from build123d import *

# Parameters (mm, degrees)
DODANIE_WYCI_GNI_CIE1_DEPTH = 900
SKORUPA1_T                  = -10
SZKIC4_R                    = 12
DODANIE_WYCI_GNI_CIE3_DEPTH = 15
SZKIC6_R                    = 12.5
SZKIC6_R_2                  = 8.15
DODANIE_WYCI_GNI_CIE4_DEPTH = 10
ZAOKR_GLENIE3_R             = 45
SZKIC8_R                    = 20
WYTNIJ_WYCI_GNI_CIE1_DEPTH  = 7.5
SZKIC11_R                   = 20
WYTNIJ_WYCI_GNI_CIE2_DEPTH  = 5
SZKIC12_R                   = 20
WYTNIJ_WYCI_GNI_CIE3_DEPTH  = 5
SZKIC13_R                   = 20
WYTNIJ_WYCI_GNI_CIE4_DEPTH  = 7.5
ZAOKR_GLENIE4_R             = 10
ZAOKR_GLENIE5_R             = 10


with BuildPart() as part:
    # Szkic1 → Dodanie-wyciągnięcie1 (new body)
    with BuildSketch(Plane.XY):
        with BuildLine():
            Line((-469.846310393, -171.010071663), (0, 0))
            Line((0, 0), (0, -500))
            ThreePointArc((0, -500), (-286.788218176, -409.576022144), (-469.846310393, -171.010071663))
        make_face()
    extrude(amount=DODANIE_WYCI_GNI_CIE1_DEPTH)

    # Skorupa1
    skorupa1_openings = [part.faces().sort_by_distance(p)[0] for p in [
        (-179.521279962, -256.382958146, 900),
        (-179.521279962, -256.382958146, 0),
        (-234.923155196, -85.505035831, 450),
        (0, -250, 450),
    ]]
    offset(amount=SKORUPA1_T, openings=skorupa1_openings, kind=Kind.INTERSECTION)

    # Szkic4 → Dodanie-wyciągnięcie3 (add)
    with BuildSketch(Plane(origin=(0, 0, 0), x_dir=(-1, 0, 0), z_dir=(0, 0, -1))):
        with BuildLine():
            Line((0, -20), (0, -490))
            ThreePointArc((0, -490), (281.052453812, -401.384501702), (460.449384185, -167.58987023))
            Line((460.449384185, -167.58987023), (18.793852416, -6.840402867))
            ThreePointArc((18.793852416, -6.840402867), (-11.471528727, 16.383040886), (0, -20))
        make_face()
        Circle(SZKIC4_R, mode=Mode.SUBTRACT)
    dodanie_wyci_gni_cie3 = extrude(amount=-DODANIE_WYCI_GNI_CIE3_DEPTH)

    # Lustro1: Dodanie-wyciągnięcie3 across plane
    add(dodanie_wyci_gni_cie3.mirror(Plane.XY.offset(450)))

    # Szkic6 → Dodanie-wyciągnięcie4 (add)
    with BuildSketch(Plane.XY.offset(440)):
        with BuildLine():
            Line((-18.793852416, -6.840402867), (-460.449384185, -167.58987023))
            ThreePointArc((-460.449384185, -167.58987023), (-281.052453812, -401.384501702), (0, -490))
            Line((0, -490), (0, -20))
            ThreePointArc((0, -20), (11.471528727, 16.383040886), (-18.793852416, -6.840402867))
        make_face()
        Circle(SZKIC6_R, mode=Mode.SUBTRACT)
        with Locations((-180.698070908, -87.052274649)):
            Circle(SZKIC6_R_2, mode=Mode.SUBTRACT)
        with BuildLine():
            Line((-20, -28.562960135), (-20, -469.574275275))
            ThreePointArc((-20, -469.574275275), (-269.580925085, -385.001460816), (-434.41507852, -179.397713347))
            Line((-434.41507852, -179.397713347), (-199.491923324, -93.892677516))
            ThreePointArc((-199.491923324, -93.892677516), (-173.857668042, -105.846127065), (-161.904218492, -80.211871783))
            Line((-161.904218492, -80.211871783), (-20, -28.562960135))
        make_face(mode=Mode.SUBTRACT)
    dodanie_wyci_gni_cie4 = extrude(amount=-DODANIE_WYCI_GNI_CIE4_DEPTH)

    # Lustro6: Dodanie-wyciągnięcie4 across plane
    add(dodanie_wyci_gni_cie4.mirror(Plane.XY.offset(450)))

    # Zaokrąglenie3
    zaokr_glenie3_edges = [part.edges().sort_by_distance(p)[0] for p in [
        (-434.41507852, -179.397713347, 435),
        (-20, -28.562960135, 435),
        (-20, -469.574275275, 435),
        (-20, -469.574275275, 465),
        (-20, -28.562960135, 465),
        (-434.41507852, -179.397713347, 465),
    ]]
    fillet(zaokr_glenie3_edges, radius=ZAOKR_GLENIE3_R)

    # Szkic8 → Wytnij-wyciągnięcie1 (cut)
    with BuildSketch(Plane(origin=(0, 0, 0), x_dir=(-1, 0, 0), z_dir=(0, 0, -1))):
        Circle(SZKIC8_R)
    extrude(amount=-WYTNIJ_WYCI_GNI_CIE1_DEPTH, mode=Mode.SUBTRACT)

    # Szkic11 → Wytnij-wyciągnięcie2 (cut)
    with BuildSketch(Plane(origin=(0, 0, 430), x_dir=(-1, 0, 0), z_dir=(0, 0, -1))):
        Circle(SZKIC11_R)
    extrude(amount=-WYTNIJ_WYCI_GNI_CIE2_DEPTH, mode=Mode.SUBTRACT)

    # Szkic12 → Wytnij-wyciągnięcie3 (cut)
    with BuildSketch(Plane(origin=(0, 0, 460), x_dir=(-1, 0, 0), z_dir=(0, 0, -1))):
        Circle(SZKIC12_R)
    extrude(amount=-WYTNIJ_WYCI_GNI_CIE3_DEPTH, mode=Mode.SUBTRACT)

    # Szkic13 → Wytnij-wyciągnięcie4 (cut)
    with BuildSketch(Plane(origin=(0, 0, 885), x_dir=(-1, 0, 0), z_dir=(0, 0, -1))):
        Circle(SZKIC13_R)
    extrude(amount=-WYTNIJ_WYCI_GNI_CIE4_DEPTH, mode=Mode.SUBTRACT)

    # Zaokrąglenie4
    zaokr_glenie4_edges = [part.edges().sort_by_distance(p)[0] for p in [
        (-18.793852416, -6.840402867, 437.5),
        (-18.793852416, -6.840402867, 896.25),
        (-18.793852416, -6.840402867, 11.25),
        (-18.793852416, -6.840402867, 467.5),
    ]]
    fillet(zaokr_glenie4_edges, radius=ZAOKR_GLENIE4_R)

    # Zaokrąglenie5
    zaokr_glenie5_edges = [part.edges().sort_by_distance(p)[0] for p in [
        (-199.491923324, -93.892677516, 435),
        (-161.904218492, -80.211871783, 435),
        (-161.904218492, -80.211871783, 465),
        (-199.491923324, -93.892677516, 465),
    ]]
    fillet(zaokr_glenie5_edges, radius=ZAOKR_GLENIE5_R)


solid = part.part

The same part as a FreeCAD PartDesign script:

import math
import FreeCAD as App
import Part
import Sketcher
Q = App.Units.Quantity


def edges_at(feature, points):
    """Names of the edges that pass closest to the given points."""
    edges = feature.Shape.Edges
    near = lambda p: min(range(len(edges)), key=lambda i: edges[i].distToShape(Part.Vertex(*p))[0])
    return sorted({f"Edge{near(p) + 1}" for p in points})


def faces_at(feature, points):
    """Names of the faces that lie closest to the given points."""
    faces = feature.Shape.Faces
    near = lambda p: min(range(len(faces)), key=lambda i: faces[i].distToShape(Part.Vertex(*p))[0])
    return sorted({f"Face{near(p) + 1}" for p in points})

doc = App.newDocument("Part")
body = doc.addObject("PartDesign::Body", "Body")

# Sketch on XY plane
sketch1 = body.newObject("Sketcher::SketchObject", "Sketch")
sketch1.AttachmentSupport = (doc.getObject("XY_Plane"), [""])
sketch1.MapMode = "FlatFace"
sketch1.addGeometry([
    Part.LineSegment(App.Vector(0, 0, 0), App.Vector(-469.84631, -171.010072, 0)),
    Part.ArcOfCircle(Part.Circle(App.Vector(0, 0, 0), App.Vector(0, 0, 1), 500), math.radians(-160), math.radians(-90)),
    Part.LineSegment(App.Vector(0, -500, 0), App.Vector(0, 0, 0)),
], False)
sketch1.addConstraint([
    Sketcher.Constraint("Coincident", 0, 2, 1, 1),
    Sketcher.Constraint("Coincident", 1, 2, 2, 1),
    Sketcher.Constraint("Coincident", 2, 2, 0, 1),
    Sketcher.Constraint("Vertical", 2),
    Sketcher.Constraint("Coincident", 1, 3, -1, 1),
    Sketcher.Constraint("Coincident", 2, 2, -1, 1),
    Sketcher.Constraint("Radius", 1, Q("500 mm")),
    Sketcher.Constraint("Angle", 0, Q("-160 deg")),
])
pad1 = body.newObject("PartDesign::Pad", "Pad")
pad1.Profile = sketch1
pad1.Length = 900
doc.recompute()

thickness = body.newObject("PartDesign::Thickness", "Thickness")
thickness.Base = (pad1, faces_at(pad1, [
    (-234.923, -250, 900),
    (-234.923, -250, 0),
    (-234.923, -85.505, 450),
    (0, -250, 450),
]))
thickness.Value = 10
thickness.Reversed = True
thickness.Join = "Intersection"

# Sketch on XY plane
sketch2 = body.newObject("Sketcher::SketchObject", "Sketch001")
sketch2.AttachmentSupport = (doc.getObject("XY_Plane"), [""])
sketch2.MapMode = "FlatFace"
sketch2.addGeometry([
    Part.LineSegment(App.Vector(0, -20, 0), App.Vector(0, -490, 0)),  # 0
    Part.ArcOfCircle(Part.Circle(App.Vector(0, 0, 0), App.Vector(0, 0, 1), 490), math.radians(-160), math.radians(-90)),  # 1
    Part.LineSegment(App.Vector(-460.449384, -167.58987, 0), App.Vector(-18.793852, -6.840403, 0)),  # 2
    Part.ArcOfCircle(Part.Circle(App.Vector(0, 0, 0), App.Vector(0, 0, 1), 20), math.radians(-90), math.radians(200)),  # 3
    Part.Circle(App.Vector(0, 0, 0), App.Vector(0, 0, 1), 12),  # 4
], False)
sketch2.addConstraint([
    Sketcher.Constraint("Coincident", 0, 2, 1, 2),
    Sketcher.Constraint("Coincident", 1, 1, 2, 1),
    Sketcher.Constraint("Coincident", 2, 2, 3, 2),
    Sketcher.Constraint("Coincident", 3, 1, 0, 1),
    Sketcher.Constraint("Vertical", 0),
    Sketcher.Constraint("Coincident", 1, 3, -1, 1),
    Sketcher.Constraint("Coincident", 3, 3, -1, 1),
    Sketcher.Constraint("Coincident", 4, 3, -1, 1),
    Sketcher.Constraint("PointOnObject", 0, 2, -2),
    Sketcher.Constraint("Diameter", 4, Q("24 mm")),
    Sketcher.Constraint("Radius", 1, Q("490 mm")),
    Sketcher.Constraint("Radius", 3, Q("20 mm")),
    Sketcher.Constraint("Angle", 2, Q("20 deg")),
    Sketcher.Constraint("DistanceX", 2, 2, -1, 1, Q("18.793852 mm")),
])
pad2 = body.newObject("PartDesign::Pad", "Pad001")
pad2.Profile = sketch2
pad2.Length = 15
doc.recompute()

datumplane = body.newObject("PartDesign::Plane", "DatumPlane")
datumplane.AttachmentSupport = (doc.getObject("XY_Plane"), [""])
datumplane.MapMode = "FlatFace"
datumplane.AttachmentOffset = App.Placement(App.Vector(0, 0, 450), App.Rotation())
mirrored = body.newObject("PartDesign::Mirrored", "Mirrored")
mirrored.Originals = [pad2]
mirrored.MirrorPlane = (datumplane, [""])
body.Tip = mirrored

# Sketch on XY plane
sketch3 = body.newObject("Sketcher::SketchObject", "Sketch002")
sketch3.AttachmentSupport = (doc.getObject("XY_Plane"), [""])
sketch3.MapMode = "FlatFace"
sketch3.AttachmentOffset = App.Placement(App.Vector(0, 0, 440), App.Rotation())
sketch3.addGeometry([
    Part.LineSegment(App.Vector(-18.793852, -6.840403, 0), App.Vector(-460.449384, -167.58987, 0)),  # 0
    Part.ArcOfCircle(Part.Circle(App.Vector(0, 0, 0), App.Vector(0, 0, 1), 490), math.radians(-160), math.radians(-90)),  # 1
    Part.LineSegment(App.Vector(0, -490, 0), App.Vector(0, -20, 0)),  # 2
    Part.ArcOfCircle(Part.Circle(App.Vector(0, 0, 0), App.Vector(0, 0, 1), 20), math.radians(-90), math.radians(200)),  # 3
    Part.LineSegment(App.Vector(-161.904218, -80.211872, 0), App.Vector(-20, -28.56296, 0)),  # 4
    Part.LineSegment(App.Vector(-20, -28.56296, 0), App.Vector(-20, -469.574275, 0)),  # 5
    Part.ArcOfCircle(Part.Circle(App.Vector(0, 0, 0), App.Vector(0, 0, 1), 470), math.radians(-157.561145), math.radians(-92.438855)),  # 6
    Part.LineSegment(App.Vector(-434.415079, -179.397713, 0), App.Vector(-199.491923, -93.892678, 0)),  # 7
    Part.ArcOfCircle(Part.Circle(App.Vector(-180.698071, -87.052275, 0), App.Vector(0, 0, 1), 20), math.radians(-160), math.radians(20)),  # 8
    Part.Circle(App.Vector(-180.698071, -87.052275, 0), App.Vector(0, 0, 1), 8.15),  # 9
    Part.Circle(App.Vector(0, 0, 0), App.Vector(0, 0, 1), 12.5),  # 10
], False)
sketch3.addConstraint([
    Sketcher.Constraint("Coincident", 0, 2, 1, 1),
    Sketcher.Constraint("Coincident", 1, 2, 2, 1),
    Sketcher.Constraint("Coincident", 2, 2, 3, 1),
    Sketcher.Constraint("Coincident", 3, 2, 0, 1),
    Sketcher.Constraint("Coincident", 4, 2, 5, 1),
    Sketcher.Constraint("Coincident", 5, 2, 6, 2),
    Sketcher.Constraint("Coincident", 6, 1, 7, 1),
    Sketcher.Constraint("Coincident", 7, 2, 8, 1),
    Sketcher.Constraint("Coincident", 8, 2, 4, 1),
    Sketcher.Constraint("Vertical", 2),
    Sketcher.Constraint("Vertical", 5),
    Sketcher.Constraint("Coincident", 1, 3, -1, 1),
    Sketcher.Constraint("Coincident", 3, 3, -1, 1),
    Sketcher.Constraint("Coincident", 6, 3, -1, 1),
    Sketcher.Constraint("Coincident", 10, 3, -1, 1),
    Sketcher.Constraint("Coincident", 9, 3, 8, 3),
    Sketcher.Constraint("Equal", 3, 8),
    Sketcher.Constraint("PointOnObject", 2, 2, -2),
    Sketcher.Constraint("Parallel", 0, 4),
    Sketcher.Constraint("Parallel", 4, 7),
    Sketcher.Constraint("Diameter", 10, Q("25 mm")),
    Sketcher.Constraint("Radius", 1, Q("490 mm")),
    Sketcher.Constraint("Radius", 3, Q("20 mm")),
    Sketcher.Constraint("Radius", 6, Q("470 mm")),
    Sketcher.Constraint("Diameter", 9, Q("16.3 mm")),
    Sketcher.Constraint("Angle", 0, Q("-160 deg")),
    Sketcher.Constraint("Distance", 7, Q("250 mm")),
    Sketcher.Constraint("DistanceX", 4, 2, -1, 1, Q("20 mm")),
    Sketcher.Constraint("DistanceY", 5, 2, 8, 3, Q("382.522001 mm")),
    Sketcher.Constraint("DistanceY", 5, 2, 5, 1, Q("441.011315 mm")),
    Sketcher.Constraint("DistanceX", 8, 3, -1, 1, Q("180.698071 mm")),
    Sketcher.Constraint("DistanceY", 0, 2, -1, 1, Q("167.58987 mm")),
])
pad3 = body.newObject("PartDesign::Pad", "Pad002")
pad3.Profile = sketch3
pad3.Length = 10
pad3.Reversed = True
doc.recompute()

datumplane2 = body.newObject("PartDesign::Plane", "DatumPlane001")
datumplane2.AttachmentSupport = (doc.getObject("XY_Plane"), [""])
datumplane2.MapMode = "FlatFace"
datumplane2.AttachmentOffset = App.Placement(App.Vector(0, 0, 450), App.Rotation())
mirrored2 = body.newObject("PartDesign::Mirrored", "Mirrored001")
mirrored2.Originals = [pad3]
mirrored2.MirrorPlane = (datumplane2, [""])
body.Tip = mirrored2
doc.recompute()

fillet = body.newObject("PartDesign::Fillet", "Fillet")
fillet.Base = (mirrored2, edges_at(mirrored2, [
    (-434.415, -179.398, 435),
    (-20, -28.563, 435),
    (-20, -469.574, 435),
    (-20, -469.574, 465),
    (-20, -28.563, 465),
    (-434.415, -179.398, 465),
]))
fillet.Radius = 45

# Sketch on XY plane
sketch4 = body.newObject("Sketcher::SketchObject", "Sketch003")
sketch4.AttachmentSupport = (doc.getObject("XY_Plane"), [""])
sketch4.MapMode = "FlatFace"
sketch4.addGeometry(Part.Circle(App.Vector(0, 0, 0), App.Vector(0, 0, 1), 20), False)
sketch4.addConstraint([
    Sketcher.Constraint("Coincident", 0, 3, -1, 1),
    Sketcher.Constraint("Diameter", 0, Q("40 mm")),
])
pocket1 = body.newObject("PartDesign::Pocket", "Pocket")
pocket1.Profile = sketch4
pocket1.Length = 7.5
pocket1.Reversed = True

# Sketch on XY plane
sketch5 = body.newObject("Sketcher::SketchObject", "Sketch004")
sketch5.AttachmentSupport = (doc.getObject("XY_Plane"), [""])
sketch5.MapMode = "FlatFace"
sketch5.AttachmentOffset = App.Placement(App.Vector(0, 0, 430), App.Rotation())
sketch5.addGeometry(Part.Circle(App.Vector(0, 0, 0), App.Vector(0, 0, 1), 20), False)
sketch5.addConstraint([
    Sketcher.Constraint("Coincident", 0, 3, -1, 1),
    Sketcher.Constraint("Diameter", 0, Q("40 mm")),
])
pocket2 = body.newObject("PartDesign::Pocket", "Pocket001")
pocket2.Profile = sketch5
pocket2.Length = 5
pocket2.Reversed = True

# Sketch on XY plane
sketch6 = body.newObject("Sketcher::SketchObject", "Sketch005")
sketch6.AttachmentSupport = (doc.getObject("XY_Plane"), [""])
sketch6.MapMode = "FlatFace"
sketch6.AttachmentOffset = App.Placement(App.Vector(0, 0, 460), App.Rotation())
sketch6.addGeometry(Part.Circle(App.Vector(0, 0, 0), App.Vector(0, 0, 1), 20), False)
sketch6.addConstraint([
    Sketcher.Constraint("Coincident", 0, 3, -1, 1),
    Sketcher.Constraint("Diameter", 0, Q("40 mm")),
])
pocket3 = body.newObject("PartDesign::Pocket", "Pocket002")
pocket3.Profile = sketch6
pocket3.Length = 5
pocket3.Reversed = True

# Sketch on XY plane
sketch7 = body.newObject("Sketcher::SketchObject", "Sketch006")
sketch7.AttachmentSupport = (doc.getObject("XY_Plane"), [""])
sketch7.MapMode = "FlatFace"
sketch7.AttachmentOffset = App.Placement(App.Vector(0, 0, 885), App.Rotation())
sketch7.addGeometry(Part.Circle(App.Vector(0, 0, 0), App.Vector(0, 0, 1), 20), False)
sketch7.addConstraint([
    Sketcher.Constraint("Coincident", 0, 3, -1, 1),
    Sketcher.Constraint("Diameter", 0, Q("40 mm")),
])
pocket4 = body.newObject("PartDesign::Pocket", "Pocket003")
pocket4.Profile = sketch7
pocket4.Length = 7.5
pocket4.Reversed = True
doc.recompute()

fillet2 = body.newObject("PartDesign::Fillet", "Fillet001")
fillet2.Base = (pocket4, edges_at(pocket4, [
    (-18.794, -6.84, 437.5),
    (-18.794, -6.84, 896.25),
    (-18.794, -6.84, 11.25),
    (-18.794, -6.84, 467.5),
]))
fillet2.Radius = 10
doc.recompute()

fillet3 = body.newObject("PartDesign::Fillet", "Fillet002")
fillet3.Base = (fillet2, edges_at(fillet2, [
    (-199.492, -93.893, 435),
    (-161.904, -80.212, 435),
    (-161.904, -80.212, 465),
    (-199.492, -93.893, 465),
]))
fillet3.Radius = 10

doc.recompute()
